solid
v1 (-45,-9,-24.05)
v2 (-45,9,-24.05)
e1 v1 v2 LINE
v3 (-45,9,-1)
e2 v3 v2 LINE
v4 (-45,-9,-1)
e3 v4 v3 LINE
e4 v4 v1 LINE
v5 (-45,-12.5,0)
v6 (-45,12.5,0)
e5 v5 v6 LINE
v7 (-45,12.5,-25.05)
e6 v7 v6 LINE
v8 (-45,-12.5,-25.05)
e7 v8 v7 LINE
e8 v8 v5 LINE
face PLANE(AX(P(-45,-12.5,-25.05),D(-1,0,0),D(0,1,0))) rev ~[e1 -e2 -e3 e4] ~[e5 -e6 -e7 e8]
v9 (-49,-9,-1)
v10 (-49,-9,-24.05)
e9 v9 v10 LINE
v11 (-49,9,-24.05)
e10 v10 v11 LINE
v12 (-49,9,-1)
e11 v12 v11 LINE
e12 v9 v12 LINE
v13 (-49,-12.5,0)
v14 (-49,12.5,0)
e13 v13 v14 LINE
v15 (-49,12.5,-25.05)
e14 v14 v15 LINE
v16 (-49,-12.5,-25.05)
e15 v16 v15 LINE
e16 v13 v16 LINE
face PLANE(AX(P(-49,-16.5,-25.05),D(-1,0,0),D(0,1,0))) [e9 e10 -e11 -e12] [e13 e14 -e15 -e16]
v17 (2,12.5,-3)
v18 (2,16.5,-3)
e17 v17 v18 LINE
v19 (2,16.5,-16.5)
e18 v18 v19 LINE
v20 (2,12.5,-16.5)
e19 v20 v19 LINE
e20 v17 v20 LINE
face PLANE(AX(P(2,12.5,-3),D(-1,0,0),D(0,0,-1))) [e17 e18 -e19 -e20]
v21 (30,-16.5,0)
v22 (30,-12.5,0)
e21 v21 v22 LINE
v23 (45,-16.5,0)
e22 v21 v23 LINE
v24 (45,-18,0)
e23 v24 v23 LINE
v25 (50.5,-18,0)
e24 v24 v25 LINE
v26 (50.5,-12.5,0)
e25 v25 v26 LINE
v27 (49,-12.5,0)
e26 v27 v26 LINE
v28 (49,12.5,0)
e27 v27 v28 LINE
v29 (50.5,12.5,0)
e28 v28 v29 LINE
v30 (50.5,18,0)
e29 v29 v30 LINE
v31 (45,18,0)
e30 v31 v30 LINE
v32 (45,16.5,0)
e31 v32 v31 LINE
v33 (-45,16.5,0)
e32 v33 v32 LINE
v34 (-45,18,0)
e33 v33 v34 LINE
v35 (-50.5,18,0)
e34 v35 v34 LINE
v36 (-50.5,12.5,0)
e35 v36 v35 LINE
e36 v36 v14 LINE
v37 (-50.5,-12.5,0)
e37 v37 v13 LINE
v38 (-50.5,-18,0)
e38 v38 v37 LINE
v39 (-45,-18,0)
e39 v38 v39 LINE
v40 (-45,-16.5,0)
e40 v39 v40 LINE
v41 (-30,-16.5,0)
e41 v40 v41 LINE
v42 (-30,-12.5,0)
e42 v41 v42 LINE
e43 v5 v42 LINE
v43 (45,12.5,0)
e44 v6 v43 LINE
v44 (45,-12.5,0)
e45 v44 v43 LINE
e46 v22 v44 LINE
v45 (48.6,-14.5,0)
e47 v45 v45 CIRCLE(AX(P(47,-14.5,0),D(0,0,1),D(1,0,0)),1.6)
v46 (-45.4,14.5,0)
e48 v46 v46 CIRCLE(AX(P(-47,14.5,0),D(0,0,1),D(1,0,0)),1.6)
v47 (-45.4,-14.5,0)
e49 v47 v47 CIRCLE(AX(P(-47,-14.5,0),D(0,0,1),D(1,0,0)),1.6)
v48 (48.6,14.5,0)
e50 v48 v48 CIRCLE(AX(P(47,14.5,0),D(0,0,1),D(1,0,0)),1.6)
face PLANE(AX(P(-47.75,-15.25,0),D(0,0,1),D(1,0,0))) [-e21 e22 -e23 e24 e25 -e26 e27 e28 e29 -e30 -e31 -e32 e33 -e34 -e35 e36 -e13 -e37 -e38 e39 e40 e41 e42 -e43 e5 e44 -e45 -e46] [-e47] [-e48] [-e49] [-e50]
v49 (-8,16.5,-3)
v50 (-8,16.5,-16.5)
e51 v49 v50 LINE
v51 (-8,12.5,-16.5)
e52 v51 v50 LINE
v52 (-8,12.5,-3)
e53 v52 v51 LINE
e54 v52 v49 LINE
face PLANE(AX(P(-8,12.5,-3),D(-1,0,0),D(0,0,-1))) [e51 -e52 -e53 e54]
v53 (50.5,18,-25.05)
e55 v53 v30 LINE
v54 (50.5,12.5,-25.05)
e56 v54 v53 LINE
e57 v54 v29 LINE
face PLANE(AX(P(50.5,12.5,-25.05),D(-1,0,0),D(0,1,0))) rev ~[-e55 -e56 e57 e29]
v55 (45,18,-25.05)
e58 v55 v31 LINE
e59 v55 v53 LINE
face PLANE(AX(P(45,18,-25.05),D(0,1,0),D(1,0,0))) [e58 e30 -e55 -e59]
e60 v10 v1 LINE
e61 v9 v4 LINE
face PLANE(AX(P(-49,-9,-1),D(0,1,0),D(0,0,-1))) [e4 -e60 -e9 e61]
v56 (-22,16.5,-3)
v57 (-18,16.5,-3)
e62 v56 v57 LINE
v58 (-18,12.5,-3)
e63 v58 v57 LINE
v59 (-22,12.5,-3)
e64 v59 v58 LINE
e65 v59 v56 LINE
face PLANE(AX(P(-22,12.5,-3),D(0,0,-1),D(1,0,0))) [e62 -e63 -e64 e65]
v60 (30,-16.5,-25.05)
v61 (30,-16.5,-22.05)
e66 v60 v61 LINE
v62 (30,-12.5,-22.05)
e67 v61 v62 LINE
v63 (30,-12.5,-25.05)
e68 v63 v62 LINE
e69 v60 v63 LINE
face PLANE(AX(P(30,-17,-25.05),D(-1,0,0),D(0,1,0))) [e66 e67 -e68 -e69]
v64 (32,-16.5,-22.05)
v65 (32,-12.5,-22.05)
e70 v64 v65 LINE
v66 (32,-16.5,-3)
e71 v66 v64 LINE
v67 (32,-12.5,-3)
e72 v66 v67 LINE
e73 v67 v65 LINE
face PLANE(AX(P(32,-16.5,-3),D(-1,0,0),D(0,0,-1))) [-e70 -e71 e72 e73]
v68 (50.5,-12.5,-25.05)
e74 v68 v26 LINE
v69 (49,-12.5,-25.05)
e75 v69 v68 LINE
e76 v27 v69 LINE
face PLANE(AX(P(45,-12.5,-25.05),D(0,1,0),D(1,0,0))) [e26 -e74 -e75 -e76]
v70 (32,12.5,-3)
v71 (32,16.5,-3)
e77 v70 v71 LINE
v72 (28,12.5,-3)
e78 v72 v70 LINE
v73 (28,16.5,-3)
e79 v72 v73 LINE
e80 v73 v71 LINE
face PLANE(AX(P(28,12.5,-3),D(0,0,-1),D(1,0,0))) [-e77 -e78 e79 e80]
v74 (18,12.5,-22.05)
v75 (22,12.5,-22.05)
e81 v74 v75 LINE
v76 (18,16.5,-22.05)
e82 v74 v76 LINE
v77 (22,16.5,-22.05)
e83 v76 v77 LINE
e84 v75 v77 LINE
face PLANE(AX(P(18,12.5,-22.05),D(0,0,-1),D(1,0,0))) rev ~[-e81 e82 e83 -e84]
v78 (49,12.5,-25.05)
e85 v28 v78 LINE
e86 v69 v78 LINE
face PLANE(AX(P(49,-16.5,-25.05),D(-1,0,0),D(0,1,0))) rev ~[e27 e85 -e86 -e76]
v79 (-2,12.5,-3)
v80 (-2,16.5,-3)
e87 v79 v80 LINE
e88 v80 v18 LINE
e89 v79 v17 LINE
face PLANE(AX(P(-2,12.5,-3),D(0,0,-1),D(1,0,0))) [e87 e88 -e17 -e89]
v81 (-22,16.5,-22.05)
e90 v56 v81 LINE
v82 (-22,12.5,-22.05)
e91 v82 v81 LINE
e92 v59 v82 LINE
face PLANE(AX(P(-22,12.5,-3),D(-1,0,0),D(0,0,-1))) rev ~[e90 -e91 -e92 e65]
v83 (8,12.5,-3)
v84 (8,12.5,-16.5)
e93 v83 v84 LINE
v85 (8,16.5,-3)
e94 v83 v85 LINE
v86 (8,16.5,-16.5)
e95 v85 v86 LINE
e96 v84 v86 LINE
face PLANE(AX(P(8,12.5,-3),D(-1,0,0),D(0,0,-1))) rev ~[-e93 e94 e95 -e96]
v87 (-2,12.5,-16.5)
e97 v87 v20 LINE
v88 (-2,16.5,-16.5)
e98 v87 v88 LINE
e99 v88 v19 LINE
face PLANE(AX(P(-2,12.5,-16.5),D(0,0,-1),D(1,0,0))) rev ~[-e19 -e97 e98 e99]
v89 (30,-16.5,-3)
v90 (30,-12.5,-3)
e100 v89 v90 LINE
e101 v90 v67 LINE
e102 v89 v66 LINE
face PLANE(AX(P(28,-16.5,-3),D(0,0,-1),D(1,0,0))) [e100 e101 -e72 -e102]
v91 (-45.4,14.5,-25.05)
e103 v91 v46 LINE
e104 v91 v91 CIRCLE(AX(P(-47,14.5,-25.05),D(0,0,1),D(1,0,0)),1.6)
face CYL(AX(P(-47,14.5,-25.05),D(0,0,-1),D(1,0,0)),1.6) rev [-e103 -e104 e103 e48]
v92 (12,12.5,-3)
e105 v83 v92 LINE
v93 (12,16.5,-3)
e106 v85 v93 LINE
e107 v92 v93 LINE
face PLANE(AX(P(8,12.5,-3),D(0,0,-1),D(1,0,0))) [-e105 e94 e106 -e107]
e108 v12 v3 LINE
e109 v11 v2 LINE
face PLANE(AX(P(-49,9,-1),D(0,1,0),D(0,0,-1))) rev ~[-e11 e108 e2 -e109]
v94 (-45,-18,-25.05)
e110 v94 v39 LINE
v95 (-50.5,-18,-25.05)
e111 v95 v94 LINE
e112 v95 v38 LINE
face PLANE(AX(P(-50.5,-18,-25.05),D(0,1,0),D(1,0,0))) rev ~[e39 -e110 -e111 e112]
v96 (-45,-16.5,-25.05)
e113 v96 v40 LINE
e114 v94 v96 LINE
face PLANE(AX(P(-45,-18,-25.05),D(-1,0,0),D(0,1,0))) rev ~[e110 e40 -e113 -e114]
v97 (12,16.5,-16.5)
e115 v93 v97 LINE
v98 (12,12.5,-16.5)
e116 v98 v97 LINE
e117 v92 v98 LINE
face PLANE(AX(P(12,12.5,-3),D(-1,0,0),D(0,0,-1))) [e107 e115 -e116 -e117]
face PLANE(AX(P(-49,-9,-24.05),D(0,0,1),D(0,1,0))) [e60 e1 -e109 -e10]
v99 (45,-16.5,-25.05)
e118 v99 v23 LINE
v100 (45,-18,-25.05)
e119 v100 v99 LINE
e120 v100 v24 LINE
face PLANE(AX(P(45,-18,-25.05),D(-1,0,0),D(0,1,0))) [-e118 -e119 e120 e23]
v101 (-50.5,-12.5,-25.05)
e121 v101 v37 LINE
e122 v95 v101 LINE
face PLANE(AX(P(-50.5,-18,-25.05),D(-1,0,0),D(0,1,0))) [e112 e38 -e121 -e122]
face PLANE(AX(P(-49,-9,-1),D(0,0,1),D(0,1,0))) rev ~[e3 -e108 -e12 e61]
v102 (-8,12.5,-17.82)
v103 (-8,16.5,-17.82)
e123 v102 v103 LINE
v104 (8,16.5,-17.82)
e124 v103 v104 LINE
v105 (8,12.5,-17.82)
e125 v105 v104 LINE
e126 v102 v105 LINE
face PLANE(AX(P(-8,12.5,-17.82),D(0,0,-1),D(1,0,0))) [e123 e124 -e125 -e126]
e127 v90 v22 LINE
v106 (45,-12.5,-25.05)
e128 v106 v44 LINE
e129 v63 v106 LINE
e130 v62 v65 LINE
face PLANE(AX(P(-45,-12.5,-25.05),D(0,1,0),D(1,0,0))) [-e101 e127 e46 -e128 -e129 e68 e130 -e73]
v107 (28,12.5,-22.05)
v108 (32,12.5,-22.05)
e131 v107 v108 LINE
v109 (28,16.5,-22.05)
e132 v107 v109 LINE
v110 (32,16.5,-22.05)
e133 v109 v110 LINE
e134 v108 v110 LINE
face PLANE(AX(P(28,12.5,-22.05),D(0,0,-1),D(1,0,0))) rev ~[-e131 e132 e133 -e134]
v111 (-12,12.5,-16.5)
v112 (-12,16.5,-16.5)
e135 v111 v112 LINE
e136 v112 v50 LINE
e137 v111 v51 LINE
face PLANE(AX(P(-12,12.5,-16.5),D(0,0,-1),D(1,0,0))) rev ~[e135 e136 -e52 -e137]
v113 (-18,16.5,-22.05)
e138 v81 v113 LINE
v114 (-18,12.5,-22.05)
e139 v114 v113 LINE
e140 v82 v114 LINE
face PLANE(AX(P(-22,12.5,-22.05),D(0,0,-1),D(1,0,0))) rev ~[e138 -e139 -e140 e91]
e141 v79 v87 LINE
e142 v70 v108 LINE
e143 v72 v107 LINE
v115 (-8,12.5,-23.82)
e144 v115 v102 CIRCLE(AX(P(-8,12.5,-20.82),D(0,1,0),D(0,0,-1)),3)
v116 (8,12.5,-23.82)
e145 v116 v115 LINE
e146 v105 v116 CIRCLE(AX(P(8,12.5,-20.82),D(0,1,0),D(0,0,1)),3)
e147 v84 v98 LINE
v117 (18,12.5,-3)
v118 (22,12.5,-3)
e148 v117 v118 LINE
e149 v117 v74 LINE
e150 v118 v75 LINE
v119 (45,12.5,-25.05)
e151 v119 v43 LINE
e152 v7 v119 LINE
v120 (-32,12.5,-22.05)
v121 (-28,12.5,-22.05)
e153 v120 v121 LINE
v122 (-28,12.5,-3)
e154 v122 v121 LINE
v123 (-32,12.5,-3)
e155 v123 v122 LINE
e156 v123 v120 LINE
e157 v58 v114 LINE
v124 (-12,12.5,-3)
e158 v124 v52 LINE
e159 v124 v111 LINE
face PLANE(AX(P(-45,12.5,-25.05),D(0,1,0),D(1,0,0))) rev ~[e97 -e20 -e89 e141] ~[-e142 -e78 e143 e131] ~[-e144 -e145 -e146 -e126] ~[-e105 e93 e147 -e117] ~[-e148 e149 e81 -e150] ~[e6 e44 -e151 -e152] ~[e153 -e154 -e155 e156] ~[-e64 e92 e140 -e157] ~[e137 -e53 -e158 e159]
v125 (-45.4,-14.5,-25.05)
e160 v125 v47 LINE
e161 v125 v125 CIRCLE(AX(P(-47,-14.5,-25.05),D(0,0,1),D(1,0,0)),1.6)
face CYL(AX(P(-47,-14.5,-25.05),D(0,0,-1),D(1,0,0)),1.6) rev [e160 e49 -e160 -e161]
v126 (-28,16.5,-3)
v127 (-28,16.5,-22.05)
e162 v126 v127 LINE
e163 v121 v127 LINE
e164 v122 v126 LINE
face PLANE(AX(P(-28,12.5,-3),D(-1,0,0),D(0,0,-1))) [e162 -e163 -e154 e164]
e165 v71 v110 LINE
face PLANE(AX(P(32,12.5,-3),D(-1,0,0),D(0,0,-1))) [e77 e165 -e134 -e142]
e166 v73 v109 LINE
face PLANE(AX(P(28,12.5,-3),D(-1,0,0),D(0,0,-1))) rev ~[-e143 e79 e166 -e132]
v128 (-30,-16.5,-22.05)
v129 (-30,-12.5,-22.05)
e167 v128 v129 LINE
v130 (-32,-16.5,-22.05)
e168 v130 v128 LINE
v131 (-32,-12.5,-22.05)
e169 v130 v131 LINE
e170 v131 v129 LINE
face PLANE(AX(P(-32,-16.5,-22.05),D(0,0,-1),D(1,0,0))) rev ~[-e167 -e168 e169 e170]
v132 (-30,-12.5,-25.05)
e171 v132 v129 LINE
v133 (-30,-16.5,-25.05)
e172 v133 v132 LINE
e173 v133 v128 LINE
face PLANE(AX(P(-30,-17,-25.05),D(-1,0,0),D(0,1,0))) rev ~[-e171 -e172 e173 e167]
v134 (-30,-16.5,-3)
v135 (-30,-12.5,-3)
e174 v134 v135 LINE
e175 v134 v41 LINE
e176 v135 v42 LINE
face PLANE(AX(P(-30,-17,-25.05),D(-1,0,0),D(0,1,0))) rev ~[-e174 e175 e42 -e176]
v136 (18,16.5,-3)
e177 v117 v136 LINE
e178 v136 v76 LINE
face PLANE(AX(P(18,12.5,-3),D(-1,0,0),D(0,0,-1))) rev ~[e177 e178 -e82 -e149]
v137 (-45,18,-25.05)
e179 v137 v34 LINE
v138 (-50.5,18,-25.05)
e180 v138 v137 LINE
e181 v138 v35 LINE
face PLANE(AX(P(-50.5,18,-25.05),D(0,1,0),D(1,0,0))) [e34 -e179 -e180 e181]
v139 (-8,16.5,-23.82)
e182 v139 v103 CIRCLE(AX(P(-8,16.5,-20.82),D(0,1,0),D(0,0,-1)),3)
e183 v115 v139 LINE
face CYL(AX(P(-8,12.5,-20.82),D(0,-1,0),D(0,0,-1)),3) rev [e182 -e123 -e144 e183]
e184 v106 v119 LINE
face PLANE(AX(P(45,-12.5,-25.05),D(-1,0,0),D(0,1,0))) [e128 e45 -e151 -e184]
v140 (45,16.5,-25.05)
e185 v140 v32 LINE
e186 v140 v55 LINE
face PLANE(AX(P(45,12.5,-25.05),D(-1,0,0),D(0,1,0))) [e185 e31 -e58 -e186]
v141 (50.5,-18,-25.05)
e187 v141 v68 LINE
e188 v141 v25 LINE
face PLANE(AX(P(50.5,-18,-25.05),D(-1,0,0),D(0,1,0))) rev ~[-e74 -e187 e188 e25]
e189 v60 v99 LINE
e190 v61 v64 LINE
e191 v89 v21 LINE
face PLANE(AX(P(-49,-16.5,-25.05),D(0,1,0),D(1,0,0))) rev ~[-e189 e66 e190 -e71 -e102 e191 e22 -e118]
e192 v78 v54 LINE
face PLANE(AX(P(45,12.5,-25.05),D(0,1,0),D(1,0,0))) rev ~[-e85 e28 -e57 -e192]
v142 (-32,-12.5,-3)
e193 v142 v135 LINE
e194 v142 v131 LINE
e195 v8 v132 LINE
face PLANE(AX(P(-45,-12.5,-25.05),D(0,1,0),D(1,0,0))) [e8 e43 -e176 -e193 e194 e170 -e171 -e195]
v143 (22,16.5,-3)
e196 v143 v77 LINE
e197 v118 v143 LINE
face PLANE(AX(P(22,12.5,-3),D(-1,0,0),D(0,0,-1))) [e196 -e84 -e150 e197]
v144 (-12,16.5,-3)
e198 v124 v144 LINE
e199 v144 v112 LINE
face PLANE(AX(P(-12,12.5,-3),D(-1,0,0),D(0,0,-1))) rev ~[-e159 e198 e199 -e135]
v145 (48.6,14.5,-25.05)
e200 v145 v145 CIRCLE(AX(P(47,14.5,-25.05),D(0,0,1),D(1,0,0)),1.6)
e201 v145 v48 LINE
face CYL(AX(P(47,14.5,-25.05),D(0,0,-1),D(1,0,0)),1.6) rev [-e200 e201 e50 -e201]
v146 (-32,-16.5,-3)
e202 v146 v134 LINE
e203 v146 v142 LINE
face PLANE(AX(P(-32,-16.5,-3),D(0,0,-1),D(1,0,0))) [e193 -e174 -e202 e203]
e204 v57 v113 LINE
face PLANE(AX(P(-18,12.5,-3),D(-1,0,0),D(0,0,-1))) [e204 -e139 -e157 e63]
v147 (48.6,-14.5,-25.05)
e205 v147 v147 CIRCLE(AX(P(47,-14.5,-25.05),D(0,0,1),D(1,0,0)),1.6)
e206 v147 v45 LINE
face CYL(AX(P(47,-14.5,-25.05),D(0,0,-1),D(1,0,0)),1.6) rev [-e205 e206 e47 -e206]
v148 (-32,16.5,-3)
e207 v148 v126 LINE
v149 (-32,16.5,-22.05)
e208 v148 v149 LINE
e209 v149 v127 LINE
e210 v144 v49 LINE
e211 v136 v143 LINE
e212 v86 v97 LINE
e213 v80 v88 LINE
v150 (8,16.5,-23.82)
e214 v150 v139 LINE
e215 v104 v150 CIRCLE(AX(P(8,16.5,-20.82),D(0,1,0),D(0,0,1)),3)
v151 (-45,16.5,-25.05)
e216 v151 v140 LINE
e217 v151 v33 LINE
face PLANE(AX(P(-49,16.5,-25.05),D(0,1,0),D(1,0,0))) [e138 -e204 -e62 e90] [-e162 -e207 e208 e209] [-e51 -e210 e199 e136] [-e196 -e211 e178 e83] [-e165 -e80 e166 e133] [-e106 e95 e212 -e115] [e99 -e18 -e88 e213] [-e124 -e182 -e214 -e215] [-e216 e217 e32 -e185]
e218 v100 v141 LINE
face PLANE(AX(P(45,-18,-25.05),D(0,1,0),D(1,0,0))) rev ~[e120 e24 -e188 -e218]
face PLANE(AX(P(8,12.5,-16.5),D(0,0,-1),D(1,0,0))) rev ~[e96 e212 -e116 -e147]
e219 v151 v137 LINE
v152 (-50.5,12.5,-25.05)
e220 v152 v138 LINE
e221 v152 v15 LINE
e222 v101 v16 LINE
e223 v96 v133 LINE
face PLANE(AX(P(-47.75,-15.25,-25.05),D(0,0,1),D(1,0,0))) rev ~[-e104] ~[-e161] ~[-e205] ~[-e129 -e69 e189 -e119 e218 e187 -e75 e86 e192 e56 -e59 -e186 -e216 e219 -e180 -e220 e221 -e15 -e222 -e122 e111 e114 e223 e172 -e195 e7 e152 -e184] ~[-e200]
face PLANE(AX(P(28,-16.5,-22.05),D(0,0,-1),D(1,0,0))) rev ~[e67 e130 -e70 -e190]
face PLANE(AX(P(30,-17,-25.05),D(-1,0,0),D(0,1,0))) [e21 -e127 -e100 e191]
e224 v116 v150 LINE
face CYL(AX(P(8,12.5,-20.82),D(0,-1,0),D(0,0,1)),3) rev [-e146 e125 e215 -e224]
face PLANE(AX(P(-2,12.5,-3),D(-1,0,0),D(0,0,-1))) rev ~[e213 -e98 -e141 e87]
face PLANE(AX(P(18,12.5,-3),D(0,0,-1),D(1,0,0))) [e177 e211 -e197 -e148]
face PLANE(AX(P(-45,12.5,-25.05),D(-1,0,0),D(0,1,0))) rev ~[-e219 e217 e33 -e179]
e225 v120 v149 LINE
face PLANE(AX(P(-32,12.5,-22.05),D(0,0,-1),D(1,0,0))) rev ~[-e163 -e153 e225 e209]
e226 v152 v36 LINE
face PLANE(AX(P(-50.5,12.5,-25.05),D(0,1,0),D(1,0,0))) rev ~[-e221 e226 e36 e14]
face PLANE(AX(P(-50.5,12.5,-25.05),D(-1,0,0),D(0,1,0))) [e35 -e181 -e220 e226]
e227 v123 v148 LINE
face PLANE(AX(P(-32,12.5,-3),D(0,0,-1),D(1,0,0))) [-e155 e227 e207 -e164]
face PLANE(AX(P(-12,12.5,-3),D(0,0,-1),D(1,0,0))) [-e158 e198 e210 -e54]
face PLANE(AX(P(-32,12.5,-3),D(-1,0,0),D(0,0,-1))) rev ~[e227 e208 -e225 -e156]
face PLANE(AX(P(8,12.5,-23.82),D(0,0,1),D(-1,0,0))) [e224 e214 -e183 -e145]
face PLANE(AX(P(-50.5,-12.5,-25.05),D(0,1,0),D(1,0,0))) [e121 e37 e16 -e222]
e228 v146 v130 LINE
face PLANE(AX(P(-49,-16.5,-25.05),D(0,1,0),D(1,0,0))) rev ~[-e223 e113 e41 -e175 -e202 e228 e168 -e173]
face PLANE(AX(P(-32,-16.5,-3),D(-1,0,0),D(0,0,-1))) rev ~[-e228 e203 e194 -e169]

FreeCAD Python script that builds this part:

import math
import FreeCAD as App
import Part
import Sketcher
from FreeCAD import Vector

doc = App.newDocument("Part")
body = doc.addObject("PartDesign::Body", "Body")

# Sketch on XY plane
sketch1 = body.newObject("Sketcher::SketchObject", "Sketch")
sketch1.AttachmentSupport = (doc.getObject("XY_Plane"), [""])
sketch1.MapMode = "FlatFace"
sketch1.AttachmentOffset = App.Placement(Vector(0, 0, -25.05), App.Rotation())
sketch1.addGeometry(Part.LineSegment(Vector(-49, 16, 0), Vector(-49, -16, 0)), False)
sketch1.addGeometry(Part.LineSegment(Vector(-49, -16, 0), Vector(49, -16, 0)), False)
sketch1.addGeometry(Part.LineSegment(Vector(49, -16, 0), Vector(49, 16, 0)), False)
sketch1.addGeometry(Part.LineSegment(Vector(49, 16, 0), Vector(-49, 16, 0)), False)
sketch1.addGeometry(Part.LineSegment(Vector(45, -12, 0), Vector(-45, -12, 0)), False)
sketch1.addGeometry(Part.LineSegment(Vector(-45, -12, 0), Vector(-45, 12, 0)), False)
sketch1.addGeometry(Part.LineSegment(Vector(-45, 12, 0), Vector(45, 12, 0)), False)
sketch1.addGeometry(Part.LineSegment(Vector(45, 12, 0), Vector(45, -12, 0)), False)
sketch1.addConstraint(Sketcher.Constraint("Coincident", 0, 2, 1, 1))
sketch1.addConstraint(Sketcher.Constraint("Coincident", 1, 2, 2, 1))
sketch1.addConstraint(Sketcher.Constraint("Coincident", 2, 2, 3, 1))
sketch1.addConstraint(Sketcher.Constraint("Coincident", 3, 2, 0, 1))
sketch1.addConstraint(Sketcher.Constraint("Coincident", 4, 2, 5, 1))
sketch1.addConstraint(Sketcher.Constraint("Coincident", 5, 2, 6, 1))
sketch1.addConstraint(Sketcher.Constraint("Coincident", 6, 2, 7, 1))
sketch1.addConstraint(Sketcher.Constraint("Coincident", 7, 2, 4, 1))
sketch1.addConstraint(Sketcher.Constraint("Vertical", 0))
sketch1.addConstraint(Sketcher.Constraint("Horizontal", 1))
sketch1.addConstraint(Sketcher.Constraint("Vertical", 2))
sketch1.addConstraint(Sketcher.Constraint("Horizontal", 3))
sketch1.addConstraint(Sketcher.Constraint("Horizontal", 4))
sketch1.addConstraint(Sketcher.Constraint("Vertical", 5))
sketch1.addConstraint(Sketcher.Constraint("Horizontal", 6))
sketch1.addConstraint(Sketcher.Constraint("Vertical", 7))
sketch1.addConstraint(Sketcher.Constraint("Symmetric", 0, 2, 2, 2, -1, 1))
sketch1.addConstraint(Sketcher.Constraint("Symmetric", 4, 2, 6, 2, -1, 1))
sketch1.addConstraint(Sketcher.Constraint("DistanceX", 1, 1, 1, 2, 98.0))
sketch1.addConstraint(Sketcher.Constraint("DistanceX", 4, 2, 4, 1, 90.0))
sketch1.addConstraint(Sketcher.Constraint("DistanceY", 0, 2, 0, 1, 33.0))
sketch1.addConstraint(Sketcher.Constraint("DistanceY", 5, 1, 5, 2, 25.0))
pad1 = body.newObject("PartDesign::Pad", "Pad")
pad1.Profile = sketch1
pad1.Length = 25.05

# Sketch on XY plane
sketch2 = body.newObject("Sketcher::SketchObject", "Sketch001")
sketch2.AttachmentSupport = (doc.getObject("XY_Plane"), [""])
sketch2.MapMode = "FlatFace"
sketch2.AttachmentOffset = App.Placement(Vector(0, 0, -25.05), App.Rotation())
sketch2.addGeometry(Part.LineSegment(Vector(45, 18, 0), Vector(45, 12, 0)), False)
sketch2.addGeometry(Part.LineSegment(Vector(45, 12, 0), Vector(50, 12, 0)), False)
sketch2.addGeometry(Part.LineSegment(Vector(50, 12, 0), Vector(50, 18, 0)), False)
sketch2.addGeometry(Part.LineSegment(Vector(50, 18, 0), Vector(45, 18, 0)), False)
sketch2.addConstraint(Sketcher.Constraint("Coincident", 0, 2, 1, 1))
sketch2.addConstraint(Sketcher.Constraint("Coincident", 1, 2, 2, 1))
sketch2.addConstraint(Sketcher.Constraint("Coincident", 2, 2, 3, 1))
sketch2.addConstraint(Sketcher.Constraint("Coincident", 3, 2, 0, 1))
sketch2.addConstraint(Sketcher.Constraint("Vertical", 0))
sketch2.addConstraint(Sketcher.Constraint("Horizontal", 1))
sketch2.addConstraint(Sketcher.Constraint("Vertical", 2))
sketch2.addConstraint(Sketcher.Constraint("Horizontal", 3))
sketch2.addConstraint(Sketcher.Constraint("Equal", 3, 0))
sketch2.addConstraint(Sketcher.Constraint("DistanceX", 1, 1, 1, 2, 5.5))
sketch2.addConstraint(Sketcher.Constraint("DistanceX", -1, 1, 0, 2, 45.0))
sketch2.addConstraint(Sketcher.Constraint("DistanceY", -1, 1, 2, 2, 18.0))
pad2 = body.newObject("PartDesign::Pad", "Pad001")
pad2.Profile = sketch2
pad2.Length = 25.05

# Sketch on XY plane
sketch3 = body.newObject("Sketcher::SketchObject", "Sketch002")
sketch3.AttachmentSupport = (doc.getObject("XY_Plane"), [""])
sketch3.MapMode = "FlatFace"
sketch3.AttachmentOffset = App.Placement(Vector(0, 0, -25.05), App.Rotation())
sketch3.addGeometry(Part.LineSegment(Vector(45, -12, 0), Vector(45, -18, 0)), False)
sketch3.addGeometry(Part.LineSegment(Vector(45, -18, 0), Vector(50, -18, 0)), False)
sketch3.addGeometry(Part.LineSegment(Vector(50, -18, 0), Vector(50, -12, 0)), False)
sketch3.addGeometry(Part.LineSegment(Vector(50, -12, 0), Vector(45, -12, 0)), False)
sketch3.addConstraint(Sketcher.Constraint("Coincident", 0, 2, 1, 1))
sketch3.addConstraint(Sketcher.Constraint("Coincident", 1, 2, 2, 1))
sketch3.addConstraint(Sketcher.Constraint("Coincident", 2, 2, 3, 1))
sketch3.addConstraint(Sketcher.Constraint("Coincident", 3, 2, 0, 1))
sketch3.addConstraint(Sketcher.Constraint("Vertical", 0))
sketch3.addConstraint(Sketcher.Constraint("Horizontal", 1))
sketch3.addConstraint(Sketcher.Constraint("Vertical", 2))
sketch3.addConstraint(Sketcher.Constraint("Horizontal", 3))
sketch3.addConstraint(Sketcher.Constraint("Equal", 3, 0))
sketch3.addConstraint(Sketcher.Constraint("DistanceX", 1, 1, 1, 2, 5.5))
sketch3.addConstraint(Sketcher.Constraint("DistanceX", -1, 1, 0, 2, 45.0))
sketch3.addConstraint(Sketcher.Constraint("DistanceY", 0, 2, -1, 1, 18.0))
pad3 = body.newObject("PartDesign::Pad", "Pad002")
pad3.Profile = sketch3
pad3.Length = 25.05

# Sketch on XY plane
sketch4 = body.newObject("Sketcher::SketchObject", "Sketch003")
sketch4.AttachmentSupport = (doc.getObject("XY_Plane"), [""])
sketch4.MapMode = "FlatFace"
sketch4.AttachmentOffset = App.Placement(Vector(0, 0, -25.05), App.Rotation())
sketch4.addGeometry(Part.LineSegment(Vector(-50, 18, 0), Vector(-50, 12, 0)), False)
sketch4.addGeometry(Part.LineSegment(Vector(-50, 12, 0), Vector(-45, 12, 0)), False)
sketch4.addGeometry(Part.LineSegment(Vector(-45, 12, 0), Vector(-45, 18, 0)), False)
sketch4.addGeometry(Part.LineSegment(Vector(-45, 18, 0), Vector(-50, 18, 0)), False)
sketch4.addConstraint(Sketcher.Constraint("Coincident", 0, 2, 1, 1))
sketch4.addConstraint(Sketcher.Constraint("Coincident", 1, 2, 2, 1))
sketch4.addConstraint(Sketcher.Constraint("Coincident", 2, 2, 3, 1))
sketch4.addConstraint(Sketcher.Constraint("Coincident", 3, 2, 0, 1))
sketch4.addConstraint(Sketcher.Constraint("Vertical", 0))
sketch4.addConstraint(Sketcher.Constraint("Horizontal", 1))
sketch4.addConstraint(Sketcher.Constraint("Vertical", 2))
sketch4.addConstraint(Sketcher.Constraint("Horizontal", 3))
sketch4.addConstraint(Sketcher.Constraint("Equal", 3, 0))
sketch4.addConstraint(Sketcher.Constraint("DistanceX", 1, 1, 1, 2, 5.5))
sketch4.addConstraint(Sketcher.Constraint("DistanceX", 1, 2, -1, 1, 45.0))
sketch4.addConstraint(Sketcher.Constraint("DistanceY", -1, 1, 2, 2, 18.0))
pad4 = body.newObject("PartDesign::Pad", "Pad003")
pad4.Profile = sketch4
pad4.Length = 25.05

# Sketch on XY plane
sketch5 = body.newObject("Sketcher::SketchObject", "Sketch004")
sketch5.AttachmentSupport = (doc.getObject("XY_Plane"), [""])
sketch5.MapMode = "FlatFace"
sketch5.AttachmentOffset = App.Placement(Vector(0, 0, -25.05), App.Rotation())
sketch5.addGeometry(Part.LineSegment(Vector(-50, -12, 0), Vector(-50, -18, 0)), False)
sketch5.addGeometry(Part.LineSegment(Vector(-50, -18, 0), Vector(-45, -18, 0)), False)
sketch5.addGeometry(Part.LineSegment(Vector(-45, -18, 0), Vector(-45, -12, 0)), False)
sketch5.addGeometry(Part.LineSegment(Vector(-45, -12, 0), Vector(-50, -12, 0)), False)
sketch5.addConstraint(Sketcher.Constraint("Coincident", 0, 2, 1, 1))
sketch5.addConstraint(Sketcher.Constraint("Coincident", 1, 2, 2, 1))
sketch5.addConstraint(Sketcher.Constraint("Coincident", 2, 2, 3, 1))
sketch5.addConstraint(Sketcher.Constraint("Coincident", 3, 2, 0, 1))
sketch5.addConstraint(Sketcher.Constraint("Vertical", 0))
sketch5.addConstraint(Sketcher.Constraint("Horizontal", 1))
sketch5.addConstraint(Sketcher.Constraint("Vertical", 2))
sketch5.addConstraint(Sketcher.Constraint("Horizontal", 3))
sketch5.addConstraint(Sketcher.Constraint("Equal", 3, 0))
sketch5.addConstraint(Sketcher.Constraint("DistanceX", 1, 1, 1, 2, 5.5))
sketch5.addConstraint(Sketcher.Constraint("DistanceY", 0, 2, -1, 1, 18.0))
sketch5.addConstraint(Sketcher.Constraint("DistanceX", 1, 2, -1, 1, 45.0))
pad5 = body.newObject("PartDesign::Pad", "Pad004")
pad5.Profile = sketch5
pad5.Length = 25.05

# Sketch on XY plane
sketch6 = body.newObject("Sketcher::SketchObject", "Sketch005")
sketch6.AttachmentSupport = (doc.getObject("XY_Plane"), [""])
sketch6.MapMode = "FlatFace"
sketch6.AttachmentOffset = App.Placement(Vector(0, 0, -25.05), App.Rotation())
sketch6.addGeometry(Part.Circle(Vector(-47, -14.5, 0), Vector(0, 0, 1), 1.6), False)
sketch6.addGeometry(Part.Circle(Vector(-47, 14.5, 0), Vector(0, 0, 1), 1.6), False)
sketch6.addGeometry(Part.Circle(Vector(47, -14.5, 0), Vector(0, 0, 1), 1.6), False)
sketch6.addGeometry(Part.Circle(Vector(47, 14.5, 0), Vector(0, 0, 1), 1.6), False)
sketch6.addConstraint(Sketcher.Constraint("Equal", 0, 1))
sketch6.addConstraint(Sketcher.Constraint("Equal", 1, 2))
sketch6.addConstraint(Sketcher.Constraint("Equal", 2, 3))
sketch6.addConstraint(Sketcher.Constraint("Symmetric", 1, 3, 2, 3, -1, 1))
sketch6.addConstraint(Sketcher.Constraint("Symmetric", 0, 3, 3, 3, -1, 1))
sketch6.addConstraint(Sketcher.Constraint("Symmetric", 0, 3, 2, 3, -2))
sketch6.addConstraint(Sketcher.Constraint("Diameter", 0, 3.2))
sketch6.addConstraint(Sketcher.Constraint("DistanceX", 0, 3, -1, 1, 47.0))
sketch6.addConstraint(Sketcher.Constraint("DistanceY", 0, 3, 1, 3, 29.0))
pocket1 = body.newObject("PartDesign::Pocket", "Pocket")
pocket1.Profile = sketch6
pocket1.Length = 25.05
pocket1.Reversed = True

# Sketch on XZ plane
sketch7 = body.newObject("Sketcher::SketchObject", "Sketch006")
sketch7.AttachmentSupport = (doc.getObject("XZ_Plane"), [""])
sketch7.MapMode = "FlatFace"
sketch7.AttachmentOffset = App.Placement(Vector(0, 0, 16.5), App.Rotation())
sketch7.addGeometry(Part.LineSegment(Vector(-32, -22.1, 0), Vector(-32, -3, 0)), False)
sketch7.addGeometry(Part.LineSegment(Vector(-32, -3, 0), Vector(-28, -3, 0)), False)
sketch7.addGeometry(Part.LineSegment(Vector(-28, -3, 0), Vector(-28, -22.1, 0)), False)
sketch7.addGeometry(Part.LineSegment(Vector(-28, -22.1, 0), Vector(-32, -22.1, 0)), False)
sketch7.addGeometry(Part.LineSegment(Vector(-22, -22.1, 0), Vector(-22, -3, 0)), False)
sketch7.addGeometry(Part.LineSegment(Vector(-22, -3, 0), Vector(-18, -3, 0)), False)
sketch7.addGeometry(Part.LineSegment(Vector(-18, -3, 0), Vector(-18, -22.1, 0)), False)
sketch7.addGeometry(Part.LineSegment(Vector(-18, -22.1, 0), Vector(-22, -22.1, 0)), False)
sketch7.addGeometry(Part.LineSegment(Vector(-12, -22.1, 0), Vector(-12, -3, 0)), False)
sketch7.addGeometry(Part.LineSegment(Vector(-12, -3, 0), Vector(-8, -3, 0)), False)
sketch7.addGeometry(Part.LineSegment(Vector(-8, -3, 0), Vector(-8, -22.1, 0)), False)
sketch7.addGeometry(Part.LineSegment(Vector(-8, -22.1, 0), Vector(-12, -22.1, 0)), False)
sketch7.addGeometry(Part.LineSegment(Vector(-2, -22.1, 0), Vector(-2, -3, 0)), False)
sketch7.addGeometry(Part.LineSegment(Vector(-2, -3, 0), Vector(2, -3, 0)), False)
sketch7.addGeometry(Part.LineSegment(Vector(2, -3, 0), Vector(2, -22.1, 0)), False)
sketch7.addGeometry(Part.LineSegment(Vector(2, -22.1, 0), Vector(-2, -22.1, 0)), False)
sketch7.addGeometry(Part.LineSegment(Vector(8, -22.1, 0), Vector(8, -3, 0)), False)
sketch7.addGeometry(Part.LineSegment(Vector(8, -3, 0), Vector(12, -3, 0)), False)
sketch7.addGeometry(Part.LineSegment(Vector(12, -3, 0), Vector(12, -22.1, 0)), False)
sketch7.addGeometry(Part.LineSegment(Vector(12, -22.1, 0), Vector(8, -22.1, 0)), False)
sketch7.addGeometry(Part.LineSegment(Vector(18, -22.1, 0), Vector(18, -3, 0)), False)
sketch7.addGeometry(Part.LineSegment(Vector(18, -3, 0), Vector(22, -3, 0)), False)
sketch7.addGeometry(Part.LineSegment(Vector(22, -3, 0), Vector(22, -22.1, 0)), False)
sketch7.addGeometry(Part.LineSegment(Vector(22, -22.1, 0), Vector(18, -22.1, 0)), False)
sketch7.addGeometry(Part.LineSegment(Vector(28, -22.1, 0), Vector(28, -3, 0)), False)
sketch7.addGeometry(Part.LineSegment(Vector(28, -3, 0), Vector(32, -3, 0)), False)
sketch7.addGeometry(Part.LineSegment(Vector(32, -3, 0), Vector(32, -22.1, 0)), False)
sketch7.addGeometry(Part.LineSegment(Vector(32, -22.1, 0), Vector(28, -22.1, 0)), False)
sketch7.addConstraint(Sketcher.Constraint("Coincident", 0, 2, 1, 1))
sketch7.addConstraint(Sketcher.Constraint("Coincident", 1, 2, 2, 1))
sketch7.addConstraint(Sketcher.Constraint("Coincident", 2, 2, 3, 1))
sketch7.addConstraint(Sketcher.Constraint("Coincident", 3, 2, 0, 1))
sketch7.addConstraint(Sketcher.Constraint("Coincident", 4, 2, 5, 1))
sketch7.addConstraint(Sketcher.Constraint("Coincident", 5, 2, 6, 1))
sketch7.addConstraint(Sketcher.Constraint("Coincident", 6, 2, 7, 1))
sketch7.addConstraint(Sketcher.Constraint("Coincident", 7, 2, 4, 1))
sketch7.addConstraint(Sketcher.Constraint("Coincident", 8, 2, 9, 1))
sketch7.addConstraint(Sketcher.Constraint("Coincident", 9, 2, 10, 1))
sketch7.addConstraint(Sketcher.Constraint("Coincident", 10, 2, 11, 1))
sketch7.addConstraint(Sketcher.Constraint("Coincident", 11, 2, 8, 1))
sketch7.addConstraint(Sketcher.Constraint("Coincident", 12, 2, 13, 1))
sketch7.addConstraint(Sketcher.Constraint("Coincident", 13, 2, 14, 1))
sketch7.addConstraint(Sketcher.Constraint("Coincident", 14, 2, 15, 1))
sketch7.addConstraint(Sketcher.Constraint("Coincident", 15, 2, 12, 1))
sketch7.addConstraint(Sketcher.Constraint("Coincident", 16, 2, 17, 1))
sketch7.addConstraint(Sketcher.Constraint("Coincident", 17, 2, 18, 1))
sketch7.addConstraint(Sketcher.Constraint("Coincident", 18, 2, 19, 1))
sketch7.addConstraint(Sketcher.Constraint("Coincident", 19, 2, 16, 1))
sketch7.addConstraint(Sketcher.Constraint("Coincident", 20, 2, 21, 1))
sketch7.addConstraint(Sketcher.Constraint("Coincident", 21, 2, 22, 1))
sketch7.addConstraint(Sketcher.Constraint("Coincident", 22, 2, 23, 1))
sketch7.addConstraint(Sketcher.Constraint("Coincident", 23, 2, 20, 1))
sketch7.addConstraint(Sketcher.Constraint("Coincident", 24, 2, 25, 1))
sketch7.addConstraint(Sketcher.Constraint("Coincident", 25, 2, 26, 1))
sketch7.addConstraint(Sketcher.Constraint("Coincident", 26, 2, 27, 1))
sketch7.addConstraint(Sketcher.Constraint("Coincident", 27, 2, 24, 1))
sketch7.addConstraint(Sketcher.Constraint("Vertical", 0))
sketch7.addConstraint(Sketcher.Constraint("Horizontal", 1))
sketch7.addConstraint(Sketcher.Constraint("Vertical", 2))
sketch7.addConstraint(Sketcher.Constraint("Horizontal", 3))
sketch7.addConstraint(Sketcher.Constraint("Vertical", 4))
sketch7.addConstraint(Sketcher.Constraint("Horizontal", 5))
sketch7.addConstraint(Sketcher.Constraint("Vertical", 6))
sketch7.addConstraint(Sketcher.Constraint("Horizontal", 7))
sketch7.addConstraint(Sketcher.Constraint("Vertical", 8))
sketch7.addConstraint(Sketcher.Constraint("Horizontal", 9))
sketch7.addConstraint(Sketcher.Constraint("Vertical", 10))
sketch7.addConstraint(Sketcher.Constraint("Horizontal", 11))
sketch7.addConstraint(Sketcher.Constraint("Vertical", 12))
sketch7.addConstraint(Sketcher.Constraint("Horizontal", 13))
sketch7.addConstraint(Sketcher.Constraint("Vertical", 14))
sketch7.addConstraint(Sketcher.Constraint("Horizontal", 15))
sketch7.addConstraint(Sketcher.Constraint("Vertical", 16))
sketch7.addConstraint(Sketcher.Constraint("Horizontal", 17))
sketch7.addConstraint(Sketcher.Constraint("Vertical", 18))
sketch7.addConstraint(Sketcher.Constraint("Horizontal", 19))
sketch7.addConstraint(Sketcher.Constraint("Vertical", 20))
sketch7.addConstraint(Sketcher.Constraint("Horizontal", 21))
sketch7.addConstraint(Sketcher.Constraint("Vertical", 22))
sketch7.addConstraint(Sketcher.Constraint("Horizontal", 23))
sketch7.addConstraint(Sketcher.Constraint("Vertical", 24))
sketch7.addConstraint(Sketcher.Constraint("Horizontal", 25))
sketch7.addConstraint(Sketcher.Constraint("Vertical", 26))
sketch7.addConstraint(Sketcher.Constraint("Horizontal", 27))
sketch7.addConstraint(Sketcher.Constraint("Symmetric", 9, 2, 16, 2, -2))
sketch7.addConstraint(Sketcher.Constraint("Symmetric", 11, 2, 18, 2, -2))
sketch7.addConstraint(Sketcher.Constraint("Symmetric", 5, 2, 20, 2, -2))
sketch7.addConstraint(Sketcher.Constraint("Symmetric", 7, 2, 22, 2, -2))
sketch7.addConstraint(Sketcher.Constraint("Symmetric", 1, 2, 24, 2, -2))
sketch7.addConstraint(Sketcher.Constraint("Symmetric", 3, 2, 26, 2, -2))
sketch7.addConstraint(Sketcher.Constraint("Horizontal", 1, 2, 4, 2))
sketch7.addConstraint(Sketcher.Constraint("Horizontal", 3, 2, 6, 2))
sketch7.addConstraint(Sketcher.Constraint("Horizontal", 5, 2, 8, 2))
sketch7.addConstraint(Sketcher.Constraint("Horizontal", 7, 2, 10, 2))
sketch7.addConstraint(Sketcher.Constraint("Horizontal", 9, 2, 12, 2))
sketch7.addConstraint(Sketcher.Constraint("Horizontal", 11, 2, 14, 2))
sketch7.addConstraint(Sketcher.Constraint("Equal", 3, 5))
sketch7.addConstraint(Sketcher.Constraint("Equal", 7, 9))
sketch7.addConstraint(Sketcher.Constraint("Equal", 11, 13))
sketch7.addConstraint(Sketcher.Constraint("DistanceX", 1, 1, 1, 2, 4.0))
sketch7.addConstraint(Sketcher.Constraint("DistanceX", 0, 2, -1, 1, 32.0))
sketch7.addConstraint(Sketcher.Constraint("DistanceY", 0, 2, -1, 1, 3.0))
sketch7.addConstraint(Sketcher.Constraint("DistanceX", 4, 2, -1, 1, 22.0))
sketch7.addConstraint(Sketcher.Constraint("DistanceX", 8, 2, -1, 1, 12.0))
sketch7.addConstraint(Sketcher.Constraint("DistanceX", 12, 2, -1, 1, 2.0))
sketch7.addConstraint(Sketcher.Constraint("DistanceY", 0, 1, 0, 2, 19.05))
pocket2 = body.newObject("PartDesign::Pocket", "Pocket001")
pocket2.Profile = sketch7
pocket2.Length = 4

# Sketch on XZ plane
sketch8 = body.newObject("Sketcher::SketchObject", "Sketch007")
sketch8.AttachmentSupport = (doc.getObject("XZ_Plane"), [""])
sketch8.MapMode = "FlatFace"
sketch8.AttachmentOffset = App.Placement(Vector(0, 0, -12.5), App.Rotation())
sketch8.addGeometry(Part.LineSegment(Vector(-32, -22.1, 0), Vector(-32, -3, 0)), False)
sketch8.addGeometry(Part.LineSegment(Vector(-32, -3, 0), Vector(-28, -3, 0)), False)
sketch8.addGeometry(Part.LineSegment(Vector(-28, -3, 0), Vector(-28, -22.1, 0)), False)
sketch8.addGeometry(Part.LineSegment(Vector(-28, -22.1, 0), Vector(-32, -22.1, 0)), False)
sketch8.addGeometry(Part.LineSegment(Vector(-22, -22.1, 0), Vector(-22, -3, 0)), False)
sketch8.addGeometry(Part.LineSegment(Vector(-22, -3, 0), Vector(-18, -3, 0)), False)
sketch8.addGeometry(Part.LineSegment(Vector(-18, -3, 0), Vector(-18, -22.1, 0)), False)
sketch8.addGeometry(Part.LineSegment(Vector(-18, -22.1, 0), Vector(-22, -22.1, 0)), False)
sketch8.addGeometry(Part.LineSegment(Vector(-12, -16.5, 0), Vector(-12, -3, 0)), False)
sketch8.addGeometry(Part.LineSegment(Vector(-12, -3, 0), Vector(-8, -3, 0)), False)
sketch8.addGeometry(Part.LineSegment(Vector(-8, -3, 0), Vector(-8, -16.5, 0)), False)
sketch8.addGeometry(Part.LineSegment(Vector(-8, -16.5, 0), Vector(-12, -16.5, 0)), False)
sketch8.addGeometry(Part.LineSegment(Vector(-2, -16.5, 0), Vector(-2, -3, 0)), False)
sketch8.addGeometry(Part.LineSegment(Vector(-2, -3, 0), Vector(2, -3, 0)), False)
sketch8.addGeometry(Part.LineSegment(Vector(2, -3, 0), Vector(2, -16.5, 0)), False)
sketch8.addGeometry(Part.LineSegment(Vector(2, -16.5, 0), Vector(-2, -16.5, 0)), False)
sketch8.addGeometry(Part.LineSegment(Vector(8, -16.5, 0), Vector(8, -3, 0)), False)
sketch8.addGeometry(Part.LineSegment(Vector(8, -3, 0), Vector(12, -3, 0)), False)
sketch8.addGeometry(Part.LineSegment(Vector(12, -3, 0), Vector(12, -16.5, 0)), False)
sketch8.addGeometry(Part.LineSegment(Vector(12, -16.5, 0), Vector(8, -16.5, 0)), False)
sketch8.addGeometry(Part.LineSegment(Vector(18, -22.1, 0), Vector(18, -3, 0)), False)
sketch8.addGeometry(Part.LineSegment(Vector(18, -3, 0), Vector(22, -3, 0)), False)
sketch8.addGeometry(Part.LineSegment(Vector(22, -3, 0), Vector(22, -22.1, 0)), False)
sketch8.addGeometry(Part.LineSegment(Vector(22, -22.1, 0), Vector(18, -22.1, 0)), False)
sketch8.addGeometry(Part.LineSegment(Vector(28, -22.1, 0), Vector(28, -3, 0)), False)
sketch8.addGeometry(Part.LineSegment(Vector(28, -3, 0), Vector(32, -3, 0)), False)
sketch8.addGeometry(Part.LineSegment(Vector(32, -3, 0), Vector(32, -22.1, 0)), False)
sketch8.addGeometry(Part.LineSegment(Vector(32, -22.1, 0), Vector(28, -22.1, 0)), False)
sketch8.addConstraint(Sketcher.Constraint("Coincident", 0, 2, 1, 1))
sketch8.addConstraint(Sketcher.Constraint("Coincident", 1, 2, 2, 1))
sketch8.addConstraint(Sketcher.Constraint("Coincident", 2, 2, 3, 1))
sketch8.addConstraint(Sketcher.Constraint("Coincident", 3, 2, 0, 1))
sketch8.addConstraint(Sketcher.Constraint("Coincident", 4, 2, 5, 1))
sketch8.addConstraint(Sketcher.Constraint("Coincident", 5, 2, 6, 1))
sketch8.addConstraint(Sketcher.Constraint("Coincident", 6, 2, 7, 1))
sketch8.addConstraint(Sketcher.Constraint("Coincident", 7, 2, 4, 1))
sketch8.addConstraint(Sketcher.Constraint("Coincident", 8, 2, 9, 1))
sketch8.addConstraint(Sketcher.Constraint("Coincident", 9, 2, 10, 1))
sketch8.addConstraint(Sketcher.Constraint("Coincident", 10, 2, 11, 1))
sketch8.addConstraint(Sketcher.Constraint("Coincident", 11, 2, 8, 1))
sketch8.addConstraint(Sketcher.Constraint("Coincident", 12, 2, 13, 1))
sketch8.addConstraint(Sketcher.Constraint("Coincident", 13, 2, 14, 1))
sketch8.addConstraint(Sketcher.Constraint("Coincident", 14, 2, 15, 1))
sketch8.addConstraint(Sketcher.Constraint("Coincident", 15, 2, 12, 1))
sketch8.addConstraint(Sketcher.Constraint("Coincident", 16, 2, 17, 1))
sketch8.addConstraint(Sketcher.Constraint("Coincident", 17, 2, 18, 1))
sketch8.addConstraint(Sketcher.Constraint("Coincident", 18, 2, 19, 1))
sketch8.addConstraint(Sketcher.Constraint("Coincident", 19, 2, 16, 1))
sketch8.addConstraint(Sketcher.Constraint("Coincident", 20, 2, 21, 1))
sketch8.addConstraint(Sketcher.Constraint("Coincident", 21, 2, 22, 1))
sketch8.addConstraint(Sketcher.Constraint("Coincident", 22, 2, 23, 1))
sketch8.addConstraint(Sketcher.Constraint("Coincident", 23, 2, 20, 1))
sketch8.addConstraint(Sketcher.Constraint("Coincident", 24, 2, 25, 1))
sketch8.addConstraint(Sketcher.Constraint("Coincident", 25, 2, 26, 1))
sketch8.addConstraint(Sketcher.Constraint("Coincident", 26, 2, 27, 1))
sketch8.addConstraint(Sketcher.Constraint("Coincident", 27, 2, 24, 1))
sketch8.addConstraint(Sketcher.Constraint("Vertical", 0))
sketch8.addConstraint(Sketcher.Constraint("Horizontal", 1))
sketch8.addConstraint(Sketcher.Constraint("Vertical", 2))
sketch8.addConstraint(Sketcher.Constraint("Horizontal", 3))
sketch8.addConstraint(Sketcher.Constraint("Vertical", 4))
sketch8.addConstraint(Sketcher.Constraint("Horizontal", 5))
sketch8.addConstraint(Sketcher.Constraint("Vertical", 6))
sketch8.addConstraint(Sketcher.Constraint("Horizontal", 7))
sketch8.addConstraint(Sketcher.Constraint("Vertical", 8))
sketch8.addConstraint(Sketcher.Constraint("Horizontal", 9))
sketch8.addConstraint(Sketcher.Constraint("Vertical", 10))
sketch8.addConstraint(Sketcher.Constraint("Horizontal", 11))
sketch8.addConstraint(Sketcher.Constraint("Vertical", 12))
sketch8.addConstraint(Sketcher.Constraint("Horizontal", 13))
sketch8.addConstraint(Sketcher.Constraint("Vertical", 14))
sketch8.addConstraint(Sketcher.Constraint("Horizontal", 15))
sketch8.addConstraint(Sketcher.Constraint("Vertical", 16))
sketch8.addConstraint(Sketcher.Constraint("Horizontal", 17))
sketch8.addConstraint(Sketcher.Constraint("Vertical", 18))
sketch8.addConstraint(Sketcher.Constraint("Horizontal", 19))
sketch8.addConstraint(Sketcher.Constraint("Vertical", 20))
sketch8.addConstraint(Sketcher.Constraint("Horizontal", 21))
sketch8.addConstraint(Sketcher.Constraint("Vertical", 22))
sketch8.addConstraint(Sketcher.Constraint("Horizontal", 23))
sketch8.addConstraint(Sketcher.Constraint("Vertical", 24))
sketch8.addConstraint(Sketcher.Constraint("Horizontal", 25))
sketch8.addConstraint(Sketcher.Constraint("Vertical", 26))
sketch8.addConstraint(Sketcher.Constraint("Horizontal", 27))
sketch8.addConstraint(Sketcher.Constraint("Symmetric", 9, 2, 16, 2, -2))
sketch8.addConstraint(Sketcher.Constraint("Symmetric", 11, 2, 18, 2, -2))
sketch8.addConstraint(Sketcher.Constraint("Symmetric", 5, 2, 20, 2, -2))
sketch8.addConstraint(Sketcher.Constraint("Symmetric", 7, 2, 22, 2, -2))
sketch8.addConstraint(Sketcher.Constraint("Symmetric", 1, 2, 24, 2, -2))
sketch8.addConstraint(Sketcher.Constraint("Symmetric", 3, 2, 26, 2, -2))
sketch8.addConstraint(Sketcher.Constraint("Horizontal", 1, 2, 4, 2))
sketch8.addConstraint(Sketcher.Constraint("Horizontal", 3, 2, 6, 2))
sketch8.addConstraint(Sketcher.Constraint("Horizontal", 5, 2, 8, 2))
sketch8.addConstraint(Sketcher.Constraint("Horizontal", 9, 2, 12, 2))
sketch8.addConstraint(Sketcher.Constraint("Horizontal", 11, 2, 14, 2))
sketch8.addConstraint(Sketcher.Constraint("Equal", 3, 5))
sketch8.addConstraint(Sketcher.Constraint("Equal", 7, 9))
sketch8.addConstraint(Sketcher.Constraint("Equal", 11, 13))
sketch8.addConstraint(Sketcher.Constraint("DistanceX", 1, 1, 1, 2, 4.0))
sketch8.addConstraint(Sketcher.Constraint("DistanceY", 8, 1, 8, 2, 13.5))
sketch8.addConstraint(Sketcher.Constraint("DistanceX", 0, 2, -1, 1, 32.0))
sketch8.addConstraint(Sketcher.Constraint("DistanceY", 0, 2, -1, 1, 3.0))
sketch8.addConstraint(Sketcher.Constraint("DistanceX", 4, 2, -1, 1, 22.0))
sketch8.addConstraint(Sketcher.Constraint("DistanceX", 8, 2, -1, 1, 12.0))
sketch8.addConstraint(Sketcher.Constraint("DistanceX", 12, 2, -1, 1, 2.0))
sketch8.addConstraint(Sketcher.Constraint("DistanceY", 0, 1, 0, 2, 19.05))
pocket3 = body.newObject("PartDesign::Pocket", "Pocket002")
pocket3.Profile = sketch8
pocket3.Length = 4

# Sketch on YZ plane
sketch9 = body.newObject("Sketcher::SketchObject", "Sketch008")
sketch9.AttachmentSupport = (doc.getObject("YZ_Plane"), [""])
sketch9.MapMode = "FlatFace"
sketch9.AttachmentOffset = App.Placement(Vector(0, 0, -49), App.Rotation())
sketch9.addGeometry(Part.LineSegment(Vector(9, -1, 0), Vector(-9, -1, 0)), False)
sketch9.addGeometry(Part.LineSegment(Vector(-9, -1, 0), Vector(-9, -24, 0)), False)
sketch9.addGeometry(Part.LineSegment(Vector(-9, -24, 0), Vector(9, -24, 0)), False)
sketch9.addGeometry(Part.LineSegment(Vector(9, -24, 0), Vector(9, -1, 0)), False)
sketch9.addConstraint(Sketcher.Constraint("Coincident", 0, 2, 1, 1))
sketch9.addConstraint(Sketcher.Constraint("Coincident", 1, 2, 2, 1))
sketch9.addConstraint(Sketcher.Constraint("Coincident", 2, 2, 3, 1))
sketch9.addConstraint(Sketcher.Constraint("Coincident", 3, 2, 0, 1))
sketch9.addConstraint(Sketcher.Constraint("Horizontal", 0))
sketch9.addConstraint(Sketcher.Constraint("Vertical", 1))
sketch9.addConstraint(Sketcher.Constraint("Horizontal", 2))
sketch9.addConstraint(Sketcher.Constraint("Vertical", 3))
sketch9.addConstraint(Sketcher.Constraint("DistanceX", 0, 2, 0, 1, 18.0))
sketch9.addConstraint(Sketcher.Constraint("DistanceX", 0, 2, -1, 1, 9.0))
sketch9.addConstraint(Sketcher.Constraint("DistanceY", 0, 2, -1, 1, 1.0))
sketch9.addConstraint(Sketcher.Constraint("DistanceY", 1, 2, 1, 1, 23.05))
pocket4 = body.newObject("PartDesign::Pocket", "Pocket003")
pocket4.Profile = sketch9
pocket4.Length = 4
pocket4.Reversed = True

# Sketch on XY plane
sketch10 = body.newObject("Sketcher::SketchObject", "Sketch009")
sketch10.AttachmentSupport = (doc.getObject("XY_Plane"), [""])
sketch10.MapMode = "FlatFace"
sketch10.AttachmentOffset = App.Placement(Vector(0, 0, -25.05), App.Rotation())
sketch10.addGeometry(Part.LineSegment(Vector(-30, -12.5, 0), Vector(-30, -17, 0)), False)
sketch10.addGeometry(Part.LineSegment(Vector(-30, -17, 0), Vector(30, -17, 0)), False)
sketch10.addGeometry(Part.LineSegment(Vector(30, -17, 0), Vector(30, -12.5, 0)), False)
sketch10.addGeometry(Part.LineSegment(Vector(30, -12.5, 0), Vector(-30, -12.5, 0)), False)
sketch10.addConstraint(Sketcher.Constraint("Coincident", 0, 2, 1, 1))
sketch10.addConstraint(Sketcher.Constraint("Coincident", 1, 2, 2, 1))
sketch10.addConstraint(Sketcher.Constraint("Coincident", 2, 2, 3, 1))
sketch10.addConstraint(Sketcher.Constraint("Coincident", 3, 2, 0, 1))
sketch10.addConstraint(Sketcher.Constraint("Vertical", 0))
sketch10.addConstraint(Sketcher.Constraint("Horizontal", 1))
sketch10.addConstraint(Sketcher.Constraint("Vertical", 2))
sketch10.addConstraint(Sketcher.Constraint("Horizontal", 3))
sketch10.addConstraint(Sketcher.Constraint("DistanceX", 1, 1, 1, 2, 60.0))
sketch10.addConstraint(Sketcher.Constraint("DistanceY", 0, 2, 0, 1, 4.5))
sketch10.addConstraint(Sketcher.Constraint("DistanceX", 0, 2, -1, 1, 30.0))
sketch10.addConstraint(Sketcher.Constraint("DistanceY", 0, 2, -1, 1, 17.0))
pocket5 = body.newObject("PartDesign::Pocket", "Pocket004")
pocket5.Profile = sketch10
pocket5.Length = 25.05
pocket5.Reversed = True

# Sketch on XZ plane
sketch11 = body.newObject("Sketcher::SketchObject", "Sketch010")
sketch11.AttachmentSupport = (doc.getObject("XZ_Plane"), [""])
sketch11.MapMode = "FlatFace"
sketch11.AttachmentOffset = App.Placement(Vector(0, 0, -12.5), App.Rotation())
sketch11.addGeometry(Part.LineSegment(Vector(-8, -17.8, 0), Vector(8, -17.8, 0)), False)
sketch11.addGeometry(Part.ArcOfCircle(Part.Circle(Vector(8, -20.8, 0), Vector(0, 0, 1), 3), math.radians(-90), math.radians(90)), False)
sketch11.addGeometry(Part.LineSegment(Vector(8, -23.8, 0), Vector(-8, -23.8, 0)), False)
sketch11.addGeometry(Part.ArcOfCircle(Part.Circle(Vector(-8, -20.8, 0), Vector(0, 0, 1), 3), math.radians(90), math.radians(270)), False)
sketch11.addConstraint(Sketcher.Constraint("Tangent", 0, 2, 1, 2))
sketch11.addConstraint(Sketcher.Constraint("Tangent", 1, 1, 2, 1))
sketch11.addConstraint(Sketcher.Constraint("Tangent", 2, 2, 3, 2))
sketch11.addConstraint(Sketcher.Constraint("Tangent", 3, 1, 0, 1))
sketch11.addConstraint(Sketcher.Constraint("Horizontal", 0))
sketch11.addConstraint(Sketcher.Constraint("Horizontal", 2))
sketch11.addConstraint(Sketcher.Constraint("Radius", 1, 3.0))
sketch11.addConstraint(Sketcher.Constraint("DistanceX", 0, 1, 0, 2, 16.0))
sketch11.addConstraint(Sketcher.Constraint("DistanceX", -1, 1, 1, 3, 8.0))
sketch11.addConstraint(Sketcher.Constraint("DistanceY", 1, 3, -1, 1, 20.82))
pocket6 = body.newObject("PartDesign::Pocket", "Pocket005")
pocket6.Profile = sketch11
pocket6.Length = 4

doc.recompute()
